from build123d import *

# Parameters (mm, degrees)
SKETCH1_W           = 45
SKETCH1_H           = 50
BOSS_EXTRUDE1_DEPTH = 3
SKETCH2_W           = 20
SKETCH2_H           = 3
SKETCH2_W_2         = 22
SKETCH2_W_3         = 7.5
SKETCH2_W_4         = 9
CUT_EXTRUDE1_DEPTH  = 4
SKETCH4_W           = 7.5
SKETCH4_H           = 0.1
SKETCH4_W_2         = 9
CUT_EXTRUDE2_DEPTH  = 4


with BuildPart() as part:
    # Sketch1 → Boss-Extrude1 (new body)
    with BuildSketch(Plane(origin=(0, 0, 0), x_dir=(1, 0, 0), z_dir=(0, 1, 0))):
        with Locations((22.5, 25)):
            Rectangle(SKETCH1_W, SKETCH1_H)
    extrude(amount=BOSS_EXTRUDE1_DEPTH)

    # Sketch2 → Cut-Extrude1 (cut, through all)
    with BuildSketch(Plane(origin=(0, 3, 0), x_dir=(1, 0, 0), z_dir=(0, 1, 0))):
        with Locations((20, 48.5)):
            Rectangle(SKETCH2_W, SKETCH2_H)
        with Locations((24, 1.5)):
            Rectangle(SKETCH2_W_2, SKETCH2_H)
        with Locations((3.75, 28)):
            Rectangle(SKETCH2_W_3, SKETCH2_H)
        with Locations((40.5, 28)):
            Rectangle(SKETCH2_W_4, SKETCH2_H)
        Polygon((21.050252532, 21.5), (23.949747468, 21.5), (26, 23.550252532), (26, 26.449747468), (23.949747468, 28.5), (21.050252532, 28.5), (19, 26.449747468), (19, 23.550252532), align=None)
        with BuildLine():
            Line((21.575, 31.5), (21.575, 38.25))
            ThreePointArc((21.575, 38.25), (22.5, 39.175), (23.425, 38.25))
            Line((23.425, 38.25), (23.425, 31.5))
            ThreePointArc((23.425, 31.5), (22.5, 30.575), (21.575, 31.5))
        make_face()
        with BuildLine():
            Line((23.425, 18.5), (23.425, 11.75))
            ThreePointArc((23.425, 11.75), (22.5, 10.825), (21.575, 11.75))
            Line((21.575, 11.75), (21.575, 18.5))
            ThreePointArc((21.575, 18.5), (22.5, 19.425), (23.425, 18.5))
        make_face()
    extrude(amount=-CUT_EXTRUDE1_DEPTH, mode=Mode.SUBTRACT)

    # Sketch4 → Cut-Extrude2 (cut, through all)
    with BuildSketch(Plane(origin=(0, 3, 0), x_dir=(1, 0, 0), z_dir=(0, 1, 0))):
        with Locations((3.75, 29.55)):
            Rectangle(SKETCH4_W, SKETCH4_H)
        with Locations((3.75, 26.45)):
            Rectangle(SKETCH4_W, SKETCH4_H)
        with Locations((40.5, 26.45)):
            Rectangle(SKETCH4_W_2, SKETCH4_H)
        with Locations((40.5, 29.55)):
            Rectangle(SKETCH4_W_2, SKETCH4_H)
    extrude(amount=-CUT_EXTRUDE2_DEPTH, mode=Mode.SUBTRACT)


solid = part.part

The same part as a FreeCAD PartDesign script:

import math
import FreeCAD as App
import Part
import Sketcher

V = App.Vector

doc = App.newDocument("Part")
body = doc.addObject("PartDesign::Body", "Body")

# Sketch on XZ plane
sketch1 = body.newObject("Sketcher::SketchObject", "Sketch")
sketch1.AttachmentSupport = (doc.getObject("XZ_Plane"), [""])
sketch1.MapMode = "FlatFace"
sketch1.addGeometry(Part.LineSegment(V(0, -50, 0), V(0, 0, 0)), False)
sketch1.addGeometry(Part.LineSegment(V(0, 0, 0), V(45, 0, 0)), False)
sketch1.addGeometry(Part.LineSegment(V(45, 0, 0), V(45, -50, 0)), False)
sketch1.addGeometry(Part.LineSegment(V(45, -50, 0), V(0, -50, 0)), False)
sketch1.addConstraint(Sketcher.Constraint("Coincident", 0, 2, 1, 1))
sketch1.addConstraint(Sketcher.Constraint("Coincident", 1, 2, 2, 1))
sketch1.addConstraint(Sketcher.Constraint("Coincident", 2, 2, 3, 1))
sketch1.addConstraint(Sketcher.Constraint("Coincident", 3, 2, 0, 1))
sketch1.addConstraint(Sketcher.Constraint("Vertical", 0))
sketch1.addConstraint(Sketcher.Constraint("Horizontal", 1))
sketch1.addConstraint(Sketcher.Constraint("Vertical", 2))
sketch1.addConstraint(Sketcher.Constraint("Horizontal", 3))
sketch1.addConstraint(Sketcher.Constraint("Coincident", 0, 2, -1, 1))
sketch1.addConstraint(Sketcher.Constraint("DistanceX", 1, 1, 1, 2, 45.0))
sketch1.addConstraint(Sketcher.Constraint("DistanceY", 0, 1, 0, 2, 50.0))
pad1 = body.newObject("PartDesign::Pad", "Pad")
pad1.Profile = sketch1
pad1.Length = 3
pad1.Reversed = True

# Sketch on XZ plane
sketch2 = body.newObject("Sketcher::SketchObject", "Sketch001")
sketch2.AttachmentSupport = (doc.getObject("XZ_Plane"), [""])
sketch2.MapMode = "FlatFace"
sketch2.AttachmentOffset = App.Placement(V(0, 0, -3), App.Rotation())
sketch2.addGeometry(Part.LineSegment(V(10, -50, 0), V(10, -47, 0)), False)
sketch2.addGeometry(Part.LineSegment(V(10, -47, 0), V(30, -47, 0)), False)
sketch2.addGeometry(Part.LineSegment(V(30, -47, 0), V(30, -50, 0)), False)
sketch2.addGeometry(Part.LineSegment(V(30, -50, 0), V(10, -50, 0)), False)
sketch2.addGeometry(Part.LineSegment(V(13, -3, 0), V(13, 0, 0)), False)
sketch2.addGeometry(Part.LineSegment(V(13, 0, 0), V(35, 0, 0)), False)
sketch2.addGeometry(Part.LineSegment(V(35, 0, 0), V(35, -3, 0)), False)
sketch2.addGeometry(Part.LineSegment(V(35, -3, 0), V(13, -3, 0)), False)
sketch2.addGeometry(Part.LineSegment(V(0, -29.5, 0), V(0, -26.5, 0)), False)
sketch2.addGeometry(Part.LineSegment(V(0, -26.5, 0), V(7.5, -26.5, 0)), False)
sketch2.addGeometry(Part.LineSegment(V(7.5, -26.5, 0), V(7.5, -29.5, 0)), False)
sketch2.addGeometry(Part.LineSegment(V(7.5, -29.5, 0), V(0, -29.5, 0)), False)
sketch2.addGeometry(Part.LineSegment(V(36, -29.5, 0), V(36, -26.5, 0)), False)
sketch2.addGeometry(Part.LineSegment(V(36, -26.5, 0), V(45, -26.5, 0)), False)
sketch2.addGeometry(Part.LineSegment(V(45, -26.5, 0), V(45, -29.5, 0)), False)
sketch2.addGeometry(Part.LineSegment(V(45, -29.5, 0), V(36, -29.5, 0)), False)
sketch2.addGeometry(Part.LineSegment(V(21.1, -21.5, 0), V(23.9, -21.5, 0)), False)
sketch2.addGeometry(Part.LineSegment(V(23.9, -21.5, 0), V(26, -23.6, 0)), False)
sketch2.addGeometry(Part.LineSegment(V(26, -23.6, 0), V(26, -26.4, 0)), False)
sketch2.addGeometry(Part.LineSegment(V(26, -26.4, 0), V(23.9, -28.5, 0)), False)
sketch2.addGeometry(Part.LineSegment(V(23.9, -28.5, 0), V(21.1, -28.5, 0)), False)
sketch2.addGeometry(Part.LineSegment(V(21.1, -28.5, 0), V(19, -26.4, 0)), False)
sketch2.addGeometry(Part.LineSegment(V(19, -26.4, 0), V(19, -23.6, 0)), False)
sketch2.addGeometry(Part.LineSegment(V(19, -23.6, 0), V(21.1, -21.5, 0)), False)
sketch2.addGeometry(Part.LineSegment(V(21.6, -38.2, 0), V(21.6, -31.5, 0)), False)
sketch2.addGeometry(Part.ArcOfCircle(Part.Circle(V(22.5, -31.5, 0), V(0, 0, 1), 0.9), math.radians(0), math.radians(180)), False)
sketch2.addGeometry(Part.LineSegment(V(23.4, -31.5, 0), V(23.4, -38.2, 0)), False)
sketch2.addGeometry(Part.ArcOfCircle(Part.Circle(V(22.5, -38.2, 0), V(0, 0, 1), 0.9), math.radians(180), math.radians(360)), False)
sketch2.addGeometry(Part.LineSegment(V(23.4, -11.8, 0), V(23.4, -18.5, 0)), False)
sketch2.addGeometry(Part.ArcOfCircle(Part.Circle(V(22.5, -18.5, 0), V(0, 0, 1), 0.9), math.radians(180), math.radians(360)), False)
sketch2.addGeometry(Part.LineSegment(V(21.6, -18.5, 0), V(21.6, -11.8, 0)), False)
sketch2.addGeometry(Part.ArcOfCircle(Part.Circle(V(22.5, -11.8, 0), V(0, 0, 1), 0.9), math.radians(0), math.radians(180)), False)
sketch2.addConstraint(Sketcher.Constraint("Coincident", 0, 2, 1, 1))
sketch2.addConstraint(Sketcher.Constraint("Coincident", 1, 2, 2, 1))
sketch2.addConstraint(Sketcher.Constraint("Coincident", 2, 2, 3, 1))
sketch2.addConstraint(Sketcher.Constraint("Coincident", 3, 2, 0, 1))
sketch2.addConstraint(Sketcher.Constraint("Coincident", 4, 2, 5, 1))
sketch2.addConstraint(Sketcher.Constraint("Coincident", 5, 2, 6, 1))
sketch2.addConstraint(Sketcher.Constraint("Coincident", 6, 2, 7, 1))
sketch2.addConstraint(Sketcher.Constraint("Coincident", 7, 2, 4, 1))
sketch2.addConstraint(Sketcher.Constraint("Coincident", 8, 2, 9, 1))
sketch2.addConstraint(Sketcher.Constraint("Coincident", 9, 2, 10, 1))
sketch2.addConstraint(Sketcher.Constraint("Coincident", 10, 2, 11, 1))
sketch2.addConstraint(Sketcher.Constraint("Coincident", 11, 2, 8, 1))
sketch2.addConstraint(Sketcher.Constraint("Coincident", 12, 2, 13, 1))
sketch2.addConstraint(Sketcher.Constraint("Coincident", 13, 2, 14, 1))
sketch2.addConstraint(Sketcher.Constraint("Coincident", 14, 2, 15, 1))
sketch2.addConstraint(Sketcher.Constraint("Coincident", 15, 2, 12, 1))
sketch2.addConstraint(Sketcher.Constraint("Coincident", 16, 2, 17, 1))
sketch2.addConstraint(Sketcher.Constraint("Coincident", 17, 2, 18, 1))
sketch2.addConstraint(Sketcher.Constraint("Coincident", 18, 2, 19, 1))
sketch2.addConstraint(Sketcher.Constraint("Coincident", 19, 2, 20, 1))
sketch2.addConstraint(Sketcher.Constraint("Coincident", 20, 2, 21, 1))
sketch2.addConstraint(Sketcher.Constraint("Coincident", 21, 2, 22, 1))
sketch2.addConstraint(Sketcher.Constraint("Coincident", 22, 2, 23, 1))
sketch2.addConstraint(Sketcher.Constraint("Coincident", 23, 2, 16, 1))
sketch2.addConstraint(Sketcher.Constraint("Tangent", 24, 2, 25, 2))
sketch2.addConstraint(Sketcher.Constraint("Tangent", 25, 1, 26, 1))
sketch2.addConstraint(Sketcher.Constraint("Tangent", 26, 2, 27, 2))
sketch2.addConstraint(Sketcher.Constraint("Tangent", 27, 1, 24, 1))
sketch2.addConstraint(Sketcher.Constraint("Tangent", 28, 2, 29, 2))
sketch2.addConstraint(Sketcher.Constraint("Tangent", 29, 1, 30, 1))
sketch2.addConstraint(Sketcher.Constraint("Tangent", 30, 2, 31, 2))
sketch2.addConstraint(Sketcher.Constraint("Tangent", 31, 1, 28, 1))
sketch2.addConstraint(Sketcher.Constraint("Vertical", 0))
sketch2.addConstraint(Sketcher.Constraint("Horizontal", 1))
sketch2.addConstraint(Sketcher.Constraint("Vertical", 2))
sketch2.addConstraint(Sketcher.Constraint("Horizontal", 3))
sketch2.addConstraint(Sketcher.Constraint("Vertical", 4))
sketch2.addConstraint(Sketcher.Constraint("Horizontal", 5))
sketch2.addConstraint(Sketcher.Constraint("Vertical", 6))
sketch2.addConstraint(Sketcher.Constraint("Horizontal", 7))
sketch2.addConstraint(Sketcher.Constraint("Vertical", 8))
sketch2.addConstraint(Sketcher.Constraint("Horizontal", 9))
sketch2.addConstraint(Sketcher.Constraint("Vertical", 10))
sketch2.addConstraint(Sketcher.Constraint("Horizontal", 11))
sketch2.addConstraint(Sketcher.Constraint("Vertical", 12))
sketch2.addConstraint(Sketcher.Constraint("Horizontal", 13))
sketch2.addConstraint(Sketcher.Constraint("Vertical", 14))
sketch2.addConstraint(Sketcher.Constraint("Horizontal", 15))
sketch2.addConstraint(Sketcher.Constraint("Horizontal", 16))
sketch2.addConstraint(Sketcher.Constraint("Vertical", 18))
sketch2.addConstraint(Sketcher.Constraint("Horizontal", 20))
sketch2.addConstraint(Sketcher.Constraint("Vertical", 22))
sketch2.addConstraint(Sketcher.Constraint("Vertical", 24))
sketch2.addConstraint(Sketcher.Constraint("Vertical", 26))
sketch2.addConstraint(Sketcher.Constraint("Vertical", 28))
sketch2.addConstraint(Sketcher.Constraint("Vertical", 30))
sketch2.addConstraint(Sketcher.Constraint("Equal", 27, 29))
sketch2.addConstraint(Sketcher.Constraint("PointOnObject", 4, 2, -1))
sketch2.addConstraint(Sketcher.Constraint("PointOnObject", 8, 2, -2))
sketch2.addConstraint(Sketcher.Constraint("Perpendicular", 17, 19))
sketch2.addConstraint(Sketcher.Constraint("Perpendicular", 19, 21))
sketch2.addConstraint(Sketcher.Constraint("Perpendicular", 21, 23))
sketch2.addConstraint(Sketcher.Constraint("Horizontal", 9, 2, 12, 2))
sketch2.addConstraint(Sketcher.Constraint("Horizontal", 11, 2, 14, 2))
sketch2.addConstraint(Sketcher.Constraint("Horizontal", 18, 2, 21, 2))
sketch2.addConstraint(Sketcher.Constraint("Horizontal", 17, 2, 22, 2))
sketch2.addConstraint(Sketcher.Constraint("Vertical", 27, 3, 29, 3))
sketch2.addConstraint(Sketcher.Constraint("Vertical", 16, 2, 19, 2))
sketch2.addConstraint(Sketcher.Constraint("Vertical", 20, 2, 23, 2))
sketch2.addConstraint(Sketcher.Constraint("Equal", 2, 4))
sketch2.addConstraint(Sketcher.Constraint("Equal", 6, 8))
sketch2.addConstraint(Sketcher.Constraint("Equal", 20, 18))
sketch2.addConstraint(Sketcher.Constraint("Equal", 26, 28))
sketch2.addConstraint(Sketcher.Constraint("DistanceX", 1, 1, 1, 2, 20.0))
sketch2.addConstraint(Sketcher.Constraint("DistanceX", 5, 1, 5, 2, 22.0))
sketch2.addConstraint(Sketcher.Constraint("DistanceX", 13, 1, 13, 2, 9.0))
sketch2.addConstraint(Sketcher.Constraint("DistanceY", 0, 1, 0, 2, 3.0))
sketch2.addConstraint(Sketcher.Constraint("DistanceX", 9, 1, 9, 2, 7.5))
sketch2.addConstraint(Sketcher.Constraint("DistanceX", -1, 1, 0, 2, 10.0))
sketch2.addConstraint(Sketcher.Constraint("DistanceY", 0, 2, -1, 1, 47.0))
sketch2.addConstraint(Sketcher.Constraint("DistanceX", -1, 1, 4, 2, 13.0))
sketch2.addConstraint(Sketcher.Constraint("DistanceX", -1, 1, 12, 2, 36.0))
sketch2.addConstraint(Sketcher.Constraint("DistanceX", -1, 1, 17, 2, 26.0))
sketch2.addConstraint(Sketcher.Constraint("DistanceX", -1, 1, 21, 2, 19.0))
sketch2.addConstraint(Sketcher.Constraint("Radius", 25, 0.925))
sketch2.addConstraint(Sketcher.Constraint("DistanceY", 25, 3, 29, 3, 13.0))
sketch2.addConstraint(Sketcher.Constraint("DistanceY", 25, 3, 8, 2, 5.0))
sketch2.addConstraint(Sketcher.Constraint("DistanceX", 9, 2, 25, 3, 15.0))
sketch2.addConstraint(Sketcher.Constraint("DistanceY", 16, 2, 29, 3, 3.0))
sketch2.addConstraint(Sketcher.Constraint("DistanceY", 24, 1, 24, 2, 6.75))
sketch2.addConstraint(Sketcher.Constraint("DistanceY", 25, 3, -1, 1, 31.5))
sketch2.addConstraint(Sketcher.Constraint("DistanceX", 16, 1, 16, 2, 2.899495))
pocket1 = body.newObject("PartDesign::Pocket", "Pocket")
pocket1.Profile = sketch2
pocket1.Type = "ThroughAll"
pocket1.Reversed = True

# Sketch on XZ plane
sketch3 = body.newObject("Sketcher::SketchObject", "Sketch002")
sketch3.AttachmentSupport = (doc.getObject("XZ_Plane"), [""])
sketch3.MapMode = "FlatFace"
sketch3.AttachmentOffset = App.Placement(V(0, 0, -3), App.Rotation())
sketch3.addGeometry(Part.LineSegment(V(0, -29.6, 0), V(0, -29.5, 0)), False)
sketch3.addGeometry(Part.LineSegment(V(0, -29.5, 0), V(7.5, -29.5, 0)), False)
sketch3.addGeometry(Part.LineSegment(V(7.5, -29.5, 0), V(7.5, -29.6, 0)), False)
sketch3.addGeometry(Part.LineSegment(V(7.5, -29.6, 0), V(0, -29.6, 0)), False)
sketch3.addGeometry(Part.LineSegment(V(0, -26.5, 0), V(0, -26.4, 0)), False)
sketch3.addGeometry(Part.LineSegment(V(0, -26.4, 0), V(7.5, -26.4, 0)), False)
sketch3.addGeometry(Part.LineSegment(V(7.5, -26.4, 0), V(7.5, -26.5, 0)), False)
sketch3.addGeometry(Part.LineSegment(V(7.5, -26.5, 0), V(0, -26.5, 0)), False)
sketch3.addGeometry(Part.LineSegment(V(36, -26.5, 0), V(36, -26.4, 0)), False)
sketch3.addGeometry(Part.LineSegment(V(36, -26.4, 0), V(45, -26.4, 0)), False)
sketch3.addGeometry(Part.LineSegment(V(45, -26.4, 0), V(45, -26.5, 0)), False)
sketch3.addGeometry(Part.LineSegment(V(45, -26.5, 0), V(36, -26.5, 0)), False)
sketch3.addGeometry(Part.LineSegment(V(36, -29.6, 0), V(36, -29.5, 0)), False)
sketch3.addGeometry(Part.LineSegment(V(36, -29.5, 0), V(45, -29.5, 0)), False)
sketch3.addGeometry(Part.LineSegment(V(45, -29.5, 0), V(45, -29.6, 0)), False)
sketch3.addGeometry(Part.LineSegment(V(45, -29.6, 0), V(36, -29.6, 0)), False)
sketch3.addConstraint(Sketcher.Constraint("Coincident", 0, 2, 1, 1))
sketch3.addConstraint(Sketcher.Constraint("Coincident", 1, 2, 2, 1))
sketch3.addConstraint(Sketcher.Constraint("Coincident", 2, 2, 3, 1))
sketch3.addConstraint(Sketcher.Constraint("Coincident", 3, 2, 0, 1))
sketch3.addConstraint(Sketcher.Constraint("Coincident", 4, 2, 5, 1))
sketch3.addConstraint(Sketcher.Constraint("Coincident", 5, 2, 6, 1))
sketch3.addConstraint(Sketcher.Constraint("Coincident", 6, 2, 7, 1))
sketch3.addConstraint(Sketcher.Constraint("Coincident", 7, 2, 4, 1))
sketch3.addConstraint(Sketcher.Constraint("Coincident", 8, 2, 9, 1))
sketch3.addConstraint(Sketcher.Constraint("Coincident", 9, 2, 10, 1))
sketch3.addConstraint(Sketcher.Constraint("Coincident", 10, 2, 11, 1))
sketch3.addConstraint(Sketcher.Constraint("Coincident", 11, 2, 8, 1))
sketch3.addConstraint(Sketcher.Constraint("Coincident", 12, 2, 13, 1))
sketch3.addConstraint(Sketcher.Constraint("Coincident", 13, 2, 14, 1))
sketch3.addConstraint(Sketcher.Constraint("Coincident", 14, 2, 15, 1))
sketch3.addConstraint(Sketcher.Constraint("Coincident", 15, 2, 12, 1))
sketch3.addConstraint(Sketcher.Constraint("Vertical", 0))
sketch3.addConstraint(Sketcher.Constraint("Horizontal", 1))
sketch3.addConstraint(Sketcher.Constraint("Vertical", 2))
sketch3.addConstraint(Sketcher.Constraint("Horizontal", 3))
sketch3.addConstraint(Sketcher.Constraint("Vertical", 4))
sketch3.addConstraint(Sketcher.Constraint("Horizontal", 5))
sketch3.addConstraint(Sketcher.Constraint("Vertical", 6))
sketch3.addConstraint(Sketcher.Constraint("Horizontal", 7))
sketch3.addConstraint(Sketcher.Constraint("Vertical", 8))
sketch3.addConstraint(Sketcher.Constraint("Horizontal", 9))
sketch3.addConstraint(Sketcher.Constraint("Vertical", 10))
sketch3.addConstraint(Sketcher.Constraint("Horizontal", 11))
sketch3.addConstraint(Sketcher.Constraint("Vertical", 12))
sketch3.addConstraint(Sketcher.Constraint("Horizontal", 13))
sketch3.addConstraint(Sketcher.Constraint("Vertical", 14))
sketch3.addConstraint(Sketcher.Constraint("Horizontal", 15))
sketch3.addConstraint(Sketcher.Constraint("PointOnObject", 0, 2, -2))
sketch3.addConstraint(Sketcher.Constraint("PointOnObject", 4, 2, -2))
sketch3.addConstraint(Sketcher.Constraint("Horizontal", 5, 2, 8, 2))
sketch3.addConstraint(Sketcher.Constraint("Horizontal", 7, 2, 10, 2))
sketch3.addConstraint(Sketcher.Constraint("Horizontal", 1, 2, 12, 2))
sketch3.addConstraint(Sketcher.Constraint("Horizontal", 3, 2, 14, 2))
sketch3.addConstraint(Sketcher.Constraint("Vertical", 2, 2, 5, 2))
sketch3.addConstraint(Sketcher.Constraint("Vertical", 11, 2, 12, 2))
sketch3.addConstraint(Sketcher.Constraint("Vertical", 10, 2, 13, 2))
sketch3.addConstraint(Sketcher.Constraint("Equal", 2, 4))
sketch3.addConstraint(Sketcher.Constraint("DistanceX", 9, 1, 9, 2, 9.0))
sketch3.addConstraint(Sketcher.Constraint("DistanceX", 1, 1, 1, 2, 7.5))
sketch3.addConstraint(Sketcher.Constraint("DistanceY", 0, 1, 0, 2, 0.1))
sketch3.addConstraint(Sketcher.Constraint("DistanceX", -1, 1, 8, 2, 36.0))
sketch3.addConstraint(Sketcher.Constraint("DistanceY", 1, 2, 6, 2, 3.0))
sketch3.addConstraint(Sketcher.Constraint("DistanceY", 0, 2, -1, 1, 29.5))
pocket2 = body.newObject("PartDesign::Pocket", "Pocket001")
pocket2.Profile = sketch3
pocket2.Type = "ThroughAll"
pocket2.Reversed = True

doc.recompute()
